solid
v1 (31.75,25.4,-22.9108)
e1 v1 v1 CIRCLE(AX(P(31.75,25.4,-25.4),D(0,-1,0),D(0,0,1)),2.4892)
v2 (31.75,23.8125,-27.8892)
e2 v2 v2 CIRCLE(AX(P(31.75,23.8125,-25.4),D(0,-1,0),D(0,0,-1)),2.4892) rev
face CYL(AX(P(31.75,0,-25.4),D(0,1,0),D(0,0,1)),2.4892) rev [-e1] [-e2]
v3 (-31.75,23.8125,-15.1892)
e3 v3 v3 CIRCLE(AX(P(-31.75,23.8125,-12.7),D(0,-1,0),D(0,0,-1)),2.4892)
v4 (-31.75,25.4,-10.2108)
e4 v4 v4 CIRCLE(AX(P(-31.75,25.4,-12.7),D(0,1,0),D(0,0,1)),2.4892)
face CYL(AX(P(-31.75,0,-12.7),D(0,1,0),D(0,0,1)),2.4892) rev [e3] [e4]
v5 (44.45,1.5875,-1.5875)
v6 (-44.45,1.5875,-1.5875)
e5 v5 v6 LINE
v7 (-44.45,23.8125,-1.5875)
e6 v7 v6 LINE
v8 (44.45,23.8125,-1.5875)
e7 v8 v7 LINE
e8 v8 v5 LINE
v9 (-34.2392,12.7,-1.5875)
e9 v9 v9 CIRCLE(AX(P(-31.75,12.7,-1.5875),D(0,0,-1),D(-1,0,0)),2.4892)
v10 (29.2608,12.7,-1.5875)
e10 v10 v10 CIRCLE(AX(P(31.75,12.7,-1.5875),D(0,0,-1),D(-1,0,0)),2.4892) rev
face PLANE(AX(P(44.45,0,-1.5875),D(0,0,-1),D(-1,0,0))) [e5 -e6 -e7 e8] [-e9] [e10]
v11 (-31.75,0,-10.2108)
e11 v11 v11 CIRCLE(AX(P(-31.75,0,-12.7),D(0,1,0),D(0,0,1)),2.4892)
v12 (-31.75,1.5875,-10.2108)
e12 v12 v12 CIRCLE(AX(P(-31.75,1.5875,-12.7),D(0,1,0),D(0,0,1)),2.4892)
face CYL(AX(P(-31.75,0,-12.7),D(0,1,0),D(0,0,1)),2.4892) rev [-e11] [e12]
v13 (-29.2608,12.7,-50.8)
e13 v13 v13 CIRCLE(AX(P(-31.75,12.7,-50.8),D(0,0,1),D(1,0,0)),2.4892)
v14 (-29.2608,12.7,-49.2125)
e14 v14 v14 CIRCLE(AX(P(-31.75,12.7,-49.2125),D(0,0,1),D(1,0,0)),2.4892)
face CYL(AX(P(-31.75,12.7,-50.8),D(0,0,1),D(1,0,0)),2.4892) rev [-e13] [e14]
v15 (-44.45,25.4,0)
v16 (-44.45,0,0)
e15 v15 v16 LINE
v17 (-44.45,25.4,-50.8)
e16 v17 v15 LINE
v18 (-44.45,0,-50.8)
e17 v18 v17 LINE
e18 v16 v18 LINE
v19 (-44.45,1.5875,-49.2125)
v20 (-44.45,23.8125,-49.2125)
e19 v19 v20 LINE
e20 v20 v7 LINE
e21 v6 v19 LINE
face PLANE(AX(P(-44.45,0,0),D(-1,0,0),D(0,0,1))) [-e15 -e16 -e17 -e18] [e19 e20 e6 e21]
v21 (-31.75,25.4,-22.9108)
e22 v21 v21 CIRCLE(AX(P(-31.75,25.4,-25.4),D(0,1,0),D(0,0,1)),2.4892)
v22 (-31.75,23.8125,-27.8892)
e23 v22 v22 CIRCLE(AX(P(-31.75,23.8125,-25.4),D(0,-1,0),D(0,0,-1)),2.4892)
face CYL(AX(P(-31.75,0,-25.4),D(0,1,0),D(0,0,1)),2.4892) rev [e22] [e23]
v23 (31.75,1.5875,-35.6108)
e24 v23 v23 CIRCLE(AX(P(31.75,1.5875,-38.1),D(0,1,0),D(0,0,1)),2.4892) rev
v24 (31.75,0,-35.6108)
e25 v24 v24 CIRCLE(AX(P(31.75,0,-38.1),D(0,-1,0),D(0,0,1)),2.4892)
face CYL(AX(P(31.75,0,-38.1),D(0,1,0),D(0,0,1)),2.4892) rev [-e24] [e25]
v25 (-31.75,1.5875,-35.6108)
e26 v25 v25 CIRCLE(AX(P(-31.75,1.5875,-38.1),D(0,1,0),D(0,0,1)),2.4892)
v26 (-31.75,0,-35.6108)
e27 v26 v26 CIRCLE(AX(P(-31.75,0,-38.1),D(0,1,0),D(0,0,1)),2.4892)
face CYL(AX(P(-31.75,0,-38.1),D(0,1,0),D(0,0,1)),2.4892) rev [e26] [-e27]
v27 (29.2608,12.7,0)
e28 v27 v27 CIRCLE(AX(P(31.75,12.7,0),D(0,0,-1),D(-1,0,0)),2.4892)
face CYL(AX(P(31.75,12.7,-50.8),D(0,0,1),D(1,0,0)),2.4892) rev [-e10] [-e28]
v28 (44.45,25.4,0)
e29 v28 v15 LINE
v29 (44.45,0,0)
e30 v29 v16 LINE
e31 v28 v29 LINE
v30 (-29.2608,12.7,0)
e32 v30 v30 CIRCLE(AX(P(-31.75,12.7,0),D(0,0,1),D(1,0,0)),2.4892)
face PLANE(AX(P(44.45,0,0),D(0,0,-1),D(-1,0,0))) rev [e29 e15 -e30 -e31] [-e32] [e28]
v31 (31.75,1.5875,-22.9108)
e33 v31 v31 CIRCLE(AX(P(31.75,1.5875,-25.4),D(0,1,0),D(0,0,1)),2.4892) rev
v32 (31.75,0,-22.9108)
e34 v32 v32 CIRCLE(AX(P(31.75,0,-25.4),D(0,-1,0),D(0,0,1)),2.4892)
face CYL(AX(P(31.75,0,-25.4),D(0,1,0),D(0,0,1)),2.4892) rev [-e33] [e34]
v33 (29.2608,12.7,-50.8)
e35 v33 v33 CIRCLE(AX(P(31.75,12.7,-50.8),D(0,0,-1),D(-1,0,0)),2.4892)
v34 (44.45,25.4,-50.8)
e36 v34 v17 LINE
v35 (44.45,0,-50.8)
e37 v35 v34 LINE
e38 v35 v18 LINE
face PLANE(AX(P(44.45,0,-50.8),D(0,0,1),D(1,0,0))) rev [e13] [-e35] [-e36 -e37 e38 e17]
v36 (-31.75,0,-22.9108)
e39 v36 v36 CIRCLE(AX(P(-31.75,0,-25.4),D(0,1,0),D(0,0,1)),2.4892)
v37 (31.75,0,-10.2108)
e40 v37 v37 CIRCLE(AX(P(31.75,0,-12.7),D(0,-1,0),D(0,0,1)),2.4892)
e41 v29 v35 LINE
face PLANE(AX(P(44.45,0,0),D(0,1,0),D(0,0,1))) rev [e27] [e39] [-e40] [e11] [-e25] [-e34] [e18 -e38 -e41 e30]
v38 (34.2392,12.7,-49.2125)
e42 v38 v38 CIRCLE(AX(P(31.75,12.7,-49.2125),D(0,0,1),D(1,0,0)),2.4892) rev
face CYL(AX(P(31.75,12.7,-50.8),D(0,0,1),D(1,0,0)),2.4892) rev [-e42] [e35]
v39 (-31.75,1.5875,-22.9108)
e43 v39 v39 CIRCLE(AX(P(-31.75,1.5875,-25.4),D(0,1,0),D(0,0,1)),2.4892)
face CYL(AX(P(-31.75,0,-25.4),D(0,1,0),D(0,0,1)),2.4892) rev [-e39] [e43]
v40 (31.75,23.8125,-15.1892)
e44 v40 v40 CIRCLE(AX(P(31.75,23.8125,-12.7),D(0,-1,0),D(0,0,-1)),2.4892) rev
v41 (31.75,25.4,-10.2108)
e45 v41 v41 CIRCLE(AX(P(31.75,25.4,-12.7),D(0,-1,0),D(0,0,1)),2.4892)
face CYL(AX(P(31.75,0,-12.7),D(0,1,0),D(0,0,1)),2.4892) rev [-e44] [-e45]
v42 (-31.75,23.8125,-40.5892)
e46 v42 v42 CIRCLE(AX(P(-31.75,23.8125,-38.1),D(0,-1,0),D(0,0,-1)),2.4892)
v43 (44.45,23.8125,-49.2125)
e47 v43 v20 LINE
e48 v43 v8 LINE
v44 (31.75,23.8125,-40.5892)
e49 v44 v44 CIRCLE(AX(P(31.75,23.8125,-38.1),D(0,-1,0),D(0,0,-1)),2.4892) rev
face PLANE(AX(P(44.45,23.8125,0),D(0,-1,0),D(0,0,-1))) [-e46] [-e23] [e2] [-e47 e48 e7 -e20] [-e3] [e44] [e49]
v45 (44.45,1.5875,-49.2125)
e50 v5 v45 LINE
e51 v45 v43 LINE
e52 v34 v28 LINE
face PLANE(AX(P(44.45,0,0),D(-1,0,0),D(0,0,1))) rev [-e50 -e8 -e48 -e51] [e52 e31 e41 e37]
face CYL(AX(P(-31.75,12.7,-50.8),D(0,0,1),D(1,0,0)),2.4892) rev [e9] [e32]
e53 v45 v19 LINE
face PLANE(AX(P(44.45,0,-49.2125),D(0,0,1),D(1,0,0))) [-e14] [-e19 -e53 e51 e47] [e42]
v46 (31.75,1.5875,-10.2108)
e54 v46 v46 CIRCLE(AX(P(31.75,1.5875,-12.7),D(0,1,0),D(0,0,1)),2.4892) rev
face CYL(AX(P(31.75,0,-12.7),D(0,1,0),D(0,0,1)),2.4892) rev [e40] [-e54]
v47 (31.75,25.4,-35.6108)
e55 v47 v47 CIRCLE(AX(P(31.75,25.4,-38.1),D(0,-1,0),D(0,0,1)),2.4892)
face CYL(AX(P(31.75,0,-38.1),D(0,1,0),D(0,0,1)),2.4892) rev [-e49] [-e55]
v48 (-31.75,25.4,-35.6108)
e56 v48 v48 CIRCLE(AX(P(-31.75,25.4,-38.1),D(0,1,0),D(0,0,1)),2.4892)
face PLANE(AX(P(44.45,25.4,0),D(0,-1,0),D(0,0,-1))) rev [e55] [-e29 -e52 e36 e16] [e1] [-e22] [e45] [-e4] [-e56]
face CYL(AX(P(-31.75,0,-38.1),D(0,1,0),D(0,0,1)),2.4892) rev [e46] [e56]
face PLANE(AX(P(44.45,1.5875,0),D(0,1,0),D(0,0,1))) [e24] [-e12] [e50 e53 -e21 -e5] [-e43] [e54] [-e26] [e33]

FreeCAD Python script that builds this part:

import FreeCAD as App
import Part
import Sketcher
from FreeCAD import Vector
Q = App.Units.Quantity


def faces_at(feature, points):
    """Names of the faces that lie closest to the given points."""
    faces = feature.Shape.Faces
    near = lambda p: min(range(len(faces)), key=lambda i: faces[i].distToShape(Part.Vertex(*p))[0])
    return sorted({f"Face{near(p) + 1}" for p in points})


def add_polygon(sketch, points):
    """Adds a closed chain of lines whose ends are joined by coincident constraints."""
    first, n = sketch.GeometryCount, len(points)
    for a, b in zip(points, points[1:] + points[:1]):
        sketch.addGeometry(Part.LineSegment(App.Vector(*a, 0), App.Vector(*b, 0)), False)
    for i in range(n):
        sketch.addConstraint(Sketcher.Constraint("Coincident", first + i, 2, first + (i + 1) % n, 1))

doc = App.newDocument("Part")
params = doc.addObject("Spreadsheet::Sheet", "Params")
for row, (alias, value) in enumerate([
    ("sketch1_width", "1 in"),
    ("sketch1_height", "2 in"),
    ("pad1_length", "3.5 in"),
    ("thickness_wall", "0.0625 in"),
    ("sketch2_diameter", "0.196 in"),
    ("sketch3_diameter", "0.196 in"),
], start=1):
    params.set(f"A{row}", alias)
    params.set(f"B{row}", "=" + value)
    params.setAlias(f"B{row}", alias)

body = doc.addObject("PartDesign::Body", "Body")

# Sketch on YZ plane
sketch1 = body.newObject("Sketcher::SketchObject", "Sketch")
sketch1.AttachmentSupport = (doc.getObject("YZ_Plane"), [""])
sketch1.MapMode = "FlatFace"
add_polygon(sketch1, [(25, 0), (0, 0), (0, -51), (25, -51)])  # lines 0-3
sketch1.addConstraint([
    Sketcher.Constraint("Horizontal", 0),
    Sketcher.Constraint("Vertical", 1),
    Sketcher.Constraint("Horizontal", 2),
    Sketcher.Constraint("Vertical", 3),
    Sketcher.Constraint("Coincident", 0, 2, -1, 1),
    Sketcher.Constraint("DistanceX", 0, 2, 0, 1, Q("1 in")),
    Sketcher.Constraint("DistanceY", 1, 2, 1, 1, Q("2 in")),
])
sketch1.setExpression("Constraints[9]", "Params.sketch1_width")
sketch1.setExpression("Constraints[10]", "Params.sketch1_height")
pad1 = body.newObject("PartDesign::Pad", "Pad")
pad1.Profile = sketch1
pad1.setExpression("Length", "Params.pad1_length")
pad1.Midplane = True
doc.recompute()

thickness = body.newObject("PartDesign::Thickness", "Thickness")
thickness.Base = (pad1, faces_at(pad1, [(44.45, 12.7, -25.4), (-44.45, 12.7, -25.4)]))
thickness.setExpression("Value", "Params.thickness_wall")
thickness.Reversed = True
thickness.Join = "Intersection"

# Sketch on XZ plane
sketch2 = body.newObject("Sketcher::SketchObject", "Sketch001")
sketch2.AttachmentSupport = (doc.getObject("XZ_Plane"), [""])
sketch2.MapMode = "FlatFace"
sketch2.AttachmentOffset = App.Placement(Vector(0, 0, -1 * 25.4), App.Rotation())
sketch2.addGeometry([
    Part.Circle(Vector(-31.8, -25.4, 0), Vector(0, 0, 1), 2.5),
    Part.Circle(Vector(-31.8, -12.7, 0), Vector(0, 0, 1), 2.5),
    Part.Circle(Vector(-31.8, -38.1, 0), Vector(0, 0, 1), 2.5),
], False)
sketch2.addConstraint([
    Sketcher.Constraint("Equal", 0, 1),
    Sketcher.Constraint("Equal", 1, 2),
    Sketcher.Constraint("Vertical", 0, 3, 1, 3),
    Sketcher.Constraint("Vertical", 1, 3, 2, 3),
    Sketcher.Constraint("Diameter", 0, Q("0.196 in")),
    Sketcher.Constraint("DistanceY", 0, 3, -1, 1, Q("1 in")),
    Sketcher.Constraint("DistanceY", 2, 3, 1, 3, Q("1 in")),
    Sketcher.Constraint("DistanceY", 1, 3, -1, 1, Q("0.5 in")),
    Sketcher.Constraint("DistanceX", 0, 3, -1, 1, Q("1.25 in")),
])
sketch2.setExpression("Constraints[4]", "Params.sketch2_diameter")
pocket1 = body.newObject("PartDesign::Pocket", "Pocket")
pocket1.Profile = sketch2
pocket1.Type = "ThroughAll"
pocket1.Reversed = True

# Sketch on XY plane
sketch3 = body.newObject("Sketcher::SketchObject", "Sketch002")
sketch3.AttachmentSupport = (doc.getObject("XY_Plane"), [""])
sketch3.MapMode = "FlatFace"
sketch3.addGeometry(Part.Circle(Vector(-31.8, 12.7, 0), Vector(0, 0, 1), 2.5), False)
sketch3.addConstraint([
    Sketcher.Constraint("Diameter", 0, Q("0.196 in")),
    Sketcher.Constraint("DistanceY", -1, 1, 0, 3, Q("0.5 in")),
    Sketcher.Constraint("DistanceX", 0, 3, -1, 1, Q("1.25 in")),
])
sketch3.setExpression("Constraints[0]", "Params.sketch3_diameter")
pocket2 = body.newObject("PartDesign::Pocket", "Pocket001")
pocket2.Profile = sketch3
pocket2.Type = "ThroughAll"
doc.recompute()

mirrored = body.newObject("PartDesign::Mirrored", "Mirrored")
mirrored.Originals = [pocket1, pocket2]
mirrored.MirrorPlane = (doc.getObject("YZ_Plane"), [""])
body.Tip = mirrored

doc.recompute()
